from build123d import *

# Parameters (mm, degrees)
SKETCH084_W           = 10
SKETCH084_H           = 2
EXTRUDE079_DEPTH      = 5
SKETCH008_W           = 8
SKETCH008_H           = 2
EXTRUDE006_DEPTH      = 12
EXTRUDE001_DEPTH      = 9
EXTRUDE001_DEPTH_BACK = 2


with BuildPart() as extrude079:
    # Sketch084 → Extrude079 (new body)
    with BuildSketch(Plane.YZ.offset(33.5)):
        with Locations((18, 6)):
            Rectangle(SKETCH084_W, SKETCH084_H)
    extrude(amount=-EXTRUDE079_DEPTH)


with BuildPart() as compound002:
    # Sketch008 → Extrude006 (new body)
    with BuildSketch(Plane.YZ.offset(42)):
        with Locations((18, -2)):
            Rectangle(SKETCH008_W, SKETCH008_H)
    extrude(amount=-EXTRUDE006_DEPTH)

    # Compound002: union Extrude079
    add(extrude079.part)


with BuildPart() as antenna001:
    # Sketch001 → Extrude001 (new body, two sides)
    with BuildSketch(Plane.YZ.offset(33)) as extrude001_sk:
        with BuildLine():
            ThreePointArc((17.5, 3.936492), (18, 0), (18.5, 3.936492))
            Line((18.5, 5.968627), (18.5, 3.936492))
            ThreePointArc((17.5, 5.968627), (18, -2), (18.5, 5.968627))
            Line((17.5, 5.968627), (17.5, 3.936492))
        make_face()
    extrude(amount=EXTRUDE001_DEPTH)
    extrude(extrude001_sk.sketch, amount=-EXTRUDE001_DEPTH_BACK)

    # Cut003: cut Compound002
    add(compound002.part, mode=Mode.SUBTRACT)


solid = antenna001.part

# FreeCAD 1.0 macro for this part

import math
import FreeCAD as App
import Part
import Sketcher


def add_polygon(sketch, points):
    """Adds a closed chain of lines whose ends are joined by coincident constraints."""
    first, n = sketch.GeometryCount, len(points)
    for a, b in zip(points, points[1:] + points[:1]):
        sketch.addGeometry(Part.LineSegment(App.Vector(*a, 0), App.Vector(*b, 0)), False)
    for i in range(n):
        sketch.addConstraint(Sketcher.Constraint("Coincident", first + i, 2, first + (i + 1) % n, 1))

doc = App.newDocument("Part")
body = doc.addObject("PartDesign::Body", "Body")

# Sketch on YZ plane
sketch1 = body.newObject("Sketcher::SketchObject", "Sketch")
sketch1.AttachmentSupport = (doc.getObject("YZ_Plane"), [""])
sketch1.MapMode = "FlatFace"
sketch1.AttachmentOffset = App.Placement(App.Vector(0, 0, 33.5), App.Rotation())
add_polygon(sketch1, [(13, 7), (13, 5), (23, 5), (23, 7)])  # lines 0-3
sketch1.addConstraint([
    Sketcher.Constraint("Vertical", 0),
    Sketcher.Constraint("Horizontal", 1),
    Sketcher.Constraint("Vertical", 2),
    Sketcher.Constraint("Horizontal", 3),
    Sketcher.Constraint("DistanceX", 1, 1, 1, 2, 10.0),
    Sketcher.Constraint("DistanceY", 0, 2, 0, 1, 2.0),
    Sketcher.Constraint("DistanceX", -1, 1, 0, 2, 13.0),
    Sketcher.Constraint("DistanceY", -1, 1, 0, 2, 5.0),
])
pad1 = body.newObject("PartDesign::Pad", "Pad")
pad1.Profile = sketch1
pad1.Length = 5
pad1.Reversed = True
body2 = doc.addObject("PartDesign::Body", "Body001")
body2.AllowCompound = True

# Sketch on YZ plane
sketch2 = body2.newObject("Sketcher::SketchObject", "Sketch001")
sketch2.AttachmentSupport = (doc.getObject("YZ_Plane001"), [""])
sketch2.MapMode = "FlatFace"
sketch2.AttachmentOffset = App.Placement(App.Vector(0, 0, 42), App.Rotation())
add_polygon(sketch2, [(14, -1), (14, -3), (22, -3), (22, -1)])  # lines 0-3
sketch2.addConstraint([
    Sketcher.Constraint("Vertical", 0),
    Sketcher.Constraint("Horizontal", 1),
    Sketcher.Constraint("Vertical", 2),
    Sketcher.Constraint("Horizontal", 3),
    Sketcher.Constraint("DistanceX", 1, 1, 1, 2, 8.0),
    Sketcher.Constraint("DistanceY", 0, 2, 0, 1, 2.0),
    Sketcher.Constraint("DistanceX", -1, 1, 0, 2, 14.0),
    Sketcher.Constraint("DistanceY", 0, 2, -1, 1, 3.0),
])
pad2 = body2.newObject("PartDesign::Pad", "Pad001")
pad2.Profile = sketch2
pad2.Length = 12
pad2.Reversed = True
doc.recompute()

boolean = body2.newObject("PartDesign::Boolean", "Boolean")
boolean.Type = "Fuse"
boolean.addObjects([body])
body3 = doc.addObject("PartDesign::Body", "Body002")

# Sketch on YZ plane
sketch3 = body3.newObject("Sketcher::SketchObject", "Sketch002")
sketch3.AttachmentSupport = (doc.getObject("YZ_Plane002"), [""])
sketch3.MapMode = "FlatFace"
sketch3.AttachmentOffset = App.Placement(App.Vector(0, 0, 33), App.Rotation())
sketch3.addGeometry([
    Part.ArcOfCircle(Part.Circle(App.Vector(18, 2, 0), App.Vector(0, 0, 1), 2), math.radians(104), math.radians(436)),
    Part.LineSegment(App.Vector(17.5, 3.9, 0), App.Vector(17.5, 6, 0)),
    Part.ArcOfCircle(Part.Circle(App.Vector(18, 2, 0), App.Vector(0, 0, 1), 4), math.radians(97), math.radians(443)),
    Part.LineSegment(App.Vector(18.5, 6, 0), App.Vector(18.5, 3.9, 0)),
], False)
sketch3.addConstraint([
    Sketcher.Constraint("Coincident", 0, 1, 1, 1),
    Sketcher.Constraint("Coincident", 1, 2, 2, 1),
    Sketcher.Constraint("Coincident", 2, 2, 3, 1),
    Sketcher.Constraint("Coincident", 3, 2, 0, 2),
    Sketcher.Constraint("Vertical", 1),
    Sketcher.Constraint("Vertical", 3),
    Sketcher.Constraint("Coincident", 2, 3, 0, 3),
    Sketcher.Constraint("Horizontal", 1, 2, 2, 2),
    Sketcher.Constraint("Radius", 0, 2.0),
    Sketcher.Constraint("Radius", 2, 4.0),
    Sketcher.Constraint("DistanceX", -1, 1, 0, 3, 18.0),
    Sketcher.Constraint("DistanceY", -1, 1, 0, 3, 2.0),
    Sketcher.Constraint("DistanceX", 1, 2, 2, 2, 1.0),
])
pad3 = body3.newObject("PartDesign::Pad", "Pad002")
pad3.Profile = sketch3
pad3.Type = "TwoLengths"
pad3.Length = 9
pad3.Length2 = 2
doc.recompute()

boolean2 = body3.newObject("PartDesign::Boolean", "Boolean001")
boolean2.Type = "Cut"
boolean2.addObjects([body2])

doc.recompute()
